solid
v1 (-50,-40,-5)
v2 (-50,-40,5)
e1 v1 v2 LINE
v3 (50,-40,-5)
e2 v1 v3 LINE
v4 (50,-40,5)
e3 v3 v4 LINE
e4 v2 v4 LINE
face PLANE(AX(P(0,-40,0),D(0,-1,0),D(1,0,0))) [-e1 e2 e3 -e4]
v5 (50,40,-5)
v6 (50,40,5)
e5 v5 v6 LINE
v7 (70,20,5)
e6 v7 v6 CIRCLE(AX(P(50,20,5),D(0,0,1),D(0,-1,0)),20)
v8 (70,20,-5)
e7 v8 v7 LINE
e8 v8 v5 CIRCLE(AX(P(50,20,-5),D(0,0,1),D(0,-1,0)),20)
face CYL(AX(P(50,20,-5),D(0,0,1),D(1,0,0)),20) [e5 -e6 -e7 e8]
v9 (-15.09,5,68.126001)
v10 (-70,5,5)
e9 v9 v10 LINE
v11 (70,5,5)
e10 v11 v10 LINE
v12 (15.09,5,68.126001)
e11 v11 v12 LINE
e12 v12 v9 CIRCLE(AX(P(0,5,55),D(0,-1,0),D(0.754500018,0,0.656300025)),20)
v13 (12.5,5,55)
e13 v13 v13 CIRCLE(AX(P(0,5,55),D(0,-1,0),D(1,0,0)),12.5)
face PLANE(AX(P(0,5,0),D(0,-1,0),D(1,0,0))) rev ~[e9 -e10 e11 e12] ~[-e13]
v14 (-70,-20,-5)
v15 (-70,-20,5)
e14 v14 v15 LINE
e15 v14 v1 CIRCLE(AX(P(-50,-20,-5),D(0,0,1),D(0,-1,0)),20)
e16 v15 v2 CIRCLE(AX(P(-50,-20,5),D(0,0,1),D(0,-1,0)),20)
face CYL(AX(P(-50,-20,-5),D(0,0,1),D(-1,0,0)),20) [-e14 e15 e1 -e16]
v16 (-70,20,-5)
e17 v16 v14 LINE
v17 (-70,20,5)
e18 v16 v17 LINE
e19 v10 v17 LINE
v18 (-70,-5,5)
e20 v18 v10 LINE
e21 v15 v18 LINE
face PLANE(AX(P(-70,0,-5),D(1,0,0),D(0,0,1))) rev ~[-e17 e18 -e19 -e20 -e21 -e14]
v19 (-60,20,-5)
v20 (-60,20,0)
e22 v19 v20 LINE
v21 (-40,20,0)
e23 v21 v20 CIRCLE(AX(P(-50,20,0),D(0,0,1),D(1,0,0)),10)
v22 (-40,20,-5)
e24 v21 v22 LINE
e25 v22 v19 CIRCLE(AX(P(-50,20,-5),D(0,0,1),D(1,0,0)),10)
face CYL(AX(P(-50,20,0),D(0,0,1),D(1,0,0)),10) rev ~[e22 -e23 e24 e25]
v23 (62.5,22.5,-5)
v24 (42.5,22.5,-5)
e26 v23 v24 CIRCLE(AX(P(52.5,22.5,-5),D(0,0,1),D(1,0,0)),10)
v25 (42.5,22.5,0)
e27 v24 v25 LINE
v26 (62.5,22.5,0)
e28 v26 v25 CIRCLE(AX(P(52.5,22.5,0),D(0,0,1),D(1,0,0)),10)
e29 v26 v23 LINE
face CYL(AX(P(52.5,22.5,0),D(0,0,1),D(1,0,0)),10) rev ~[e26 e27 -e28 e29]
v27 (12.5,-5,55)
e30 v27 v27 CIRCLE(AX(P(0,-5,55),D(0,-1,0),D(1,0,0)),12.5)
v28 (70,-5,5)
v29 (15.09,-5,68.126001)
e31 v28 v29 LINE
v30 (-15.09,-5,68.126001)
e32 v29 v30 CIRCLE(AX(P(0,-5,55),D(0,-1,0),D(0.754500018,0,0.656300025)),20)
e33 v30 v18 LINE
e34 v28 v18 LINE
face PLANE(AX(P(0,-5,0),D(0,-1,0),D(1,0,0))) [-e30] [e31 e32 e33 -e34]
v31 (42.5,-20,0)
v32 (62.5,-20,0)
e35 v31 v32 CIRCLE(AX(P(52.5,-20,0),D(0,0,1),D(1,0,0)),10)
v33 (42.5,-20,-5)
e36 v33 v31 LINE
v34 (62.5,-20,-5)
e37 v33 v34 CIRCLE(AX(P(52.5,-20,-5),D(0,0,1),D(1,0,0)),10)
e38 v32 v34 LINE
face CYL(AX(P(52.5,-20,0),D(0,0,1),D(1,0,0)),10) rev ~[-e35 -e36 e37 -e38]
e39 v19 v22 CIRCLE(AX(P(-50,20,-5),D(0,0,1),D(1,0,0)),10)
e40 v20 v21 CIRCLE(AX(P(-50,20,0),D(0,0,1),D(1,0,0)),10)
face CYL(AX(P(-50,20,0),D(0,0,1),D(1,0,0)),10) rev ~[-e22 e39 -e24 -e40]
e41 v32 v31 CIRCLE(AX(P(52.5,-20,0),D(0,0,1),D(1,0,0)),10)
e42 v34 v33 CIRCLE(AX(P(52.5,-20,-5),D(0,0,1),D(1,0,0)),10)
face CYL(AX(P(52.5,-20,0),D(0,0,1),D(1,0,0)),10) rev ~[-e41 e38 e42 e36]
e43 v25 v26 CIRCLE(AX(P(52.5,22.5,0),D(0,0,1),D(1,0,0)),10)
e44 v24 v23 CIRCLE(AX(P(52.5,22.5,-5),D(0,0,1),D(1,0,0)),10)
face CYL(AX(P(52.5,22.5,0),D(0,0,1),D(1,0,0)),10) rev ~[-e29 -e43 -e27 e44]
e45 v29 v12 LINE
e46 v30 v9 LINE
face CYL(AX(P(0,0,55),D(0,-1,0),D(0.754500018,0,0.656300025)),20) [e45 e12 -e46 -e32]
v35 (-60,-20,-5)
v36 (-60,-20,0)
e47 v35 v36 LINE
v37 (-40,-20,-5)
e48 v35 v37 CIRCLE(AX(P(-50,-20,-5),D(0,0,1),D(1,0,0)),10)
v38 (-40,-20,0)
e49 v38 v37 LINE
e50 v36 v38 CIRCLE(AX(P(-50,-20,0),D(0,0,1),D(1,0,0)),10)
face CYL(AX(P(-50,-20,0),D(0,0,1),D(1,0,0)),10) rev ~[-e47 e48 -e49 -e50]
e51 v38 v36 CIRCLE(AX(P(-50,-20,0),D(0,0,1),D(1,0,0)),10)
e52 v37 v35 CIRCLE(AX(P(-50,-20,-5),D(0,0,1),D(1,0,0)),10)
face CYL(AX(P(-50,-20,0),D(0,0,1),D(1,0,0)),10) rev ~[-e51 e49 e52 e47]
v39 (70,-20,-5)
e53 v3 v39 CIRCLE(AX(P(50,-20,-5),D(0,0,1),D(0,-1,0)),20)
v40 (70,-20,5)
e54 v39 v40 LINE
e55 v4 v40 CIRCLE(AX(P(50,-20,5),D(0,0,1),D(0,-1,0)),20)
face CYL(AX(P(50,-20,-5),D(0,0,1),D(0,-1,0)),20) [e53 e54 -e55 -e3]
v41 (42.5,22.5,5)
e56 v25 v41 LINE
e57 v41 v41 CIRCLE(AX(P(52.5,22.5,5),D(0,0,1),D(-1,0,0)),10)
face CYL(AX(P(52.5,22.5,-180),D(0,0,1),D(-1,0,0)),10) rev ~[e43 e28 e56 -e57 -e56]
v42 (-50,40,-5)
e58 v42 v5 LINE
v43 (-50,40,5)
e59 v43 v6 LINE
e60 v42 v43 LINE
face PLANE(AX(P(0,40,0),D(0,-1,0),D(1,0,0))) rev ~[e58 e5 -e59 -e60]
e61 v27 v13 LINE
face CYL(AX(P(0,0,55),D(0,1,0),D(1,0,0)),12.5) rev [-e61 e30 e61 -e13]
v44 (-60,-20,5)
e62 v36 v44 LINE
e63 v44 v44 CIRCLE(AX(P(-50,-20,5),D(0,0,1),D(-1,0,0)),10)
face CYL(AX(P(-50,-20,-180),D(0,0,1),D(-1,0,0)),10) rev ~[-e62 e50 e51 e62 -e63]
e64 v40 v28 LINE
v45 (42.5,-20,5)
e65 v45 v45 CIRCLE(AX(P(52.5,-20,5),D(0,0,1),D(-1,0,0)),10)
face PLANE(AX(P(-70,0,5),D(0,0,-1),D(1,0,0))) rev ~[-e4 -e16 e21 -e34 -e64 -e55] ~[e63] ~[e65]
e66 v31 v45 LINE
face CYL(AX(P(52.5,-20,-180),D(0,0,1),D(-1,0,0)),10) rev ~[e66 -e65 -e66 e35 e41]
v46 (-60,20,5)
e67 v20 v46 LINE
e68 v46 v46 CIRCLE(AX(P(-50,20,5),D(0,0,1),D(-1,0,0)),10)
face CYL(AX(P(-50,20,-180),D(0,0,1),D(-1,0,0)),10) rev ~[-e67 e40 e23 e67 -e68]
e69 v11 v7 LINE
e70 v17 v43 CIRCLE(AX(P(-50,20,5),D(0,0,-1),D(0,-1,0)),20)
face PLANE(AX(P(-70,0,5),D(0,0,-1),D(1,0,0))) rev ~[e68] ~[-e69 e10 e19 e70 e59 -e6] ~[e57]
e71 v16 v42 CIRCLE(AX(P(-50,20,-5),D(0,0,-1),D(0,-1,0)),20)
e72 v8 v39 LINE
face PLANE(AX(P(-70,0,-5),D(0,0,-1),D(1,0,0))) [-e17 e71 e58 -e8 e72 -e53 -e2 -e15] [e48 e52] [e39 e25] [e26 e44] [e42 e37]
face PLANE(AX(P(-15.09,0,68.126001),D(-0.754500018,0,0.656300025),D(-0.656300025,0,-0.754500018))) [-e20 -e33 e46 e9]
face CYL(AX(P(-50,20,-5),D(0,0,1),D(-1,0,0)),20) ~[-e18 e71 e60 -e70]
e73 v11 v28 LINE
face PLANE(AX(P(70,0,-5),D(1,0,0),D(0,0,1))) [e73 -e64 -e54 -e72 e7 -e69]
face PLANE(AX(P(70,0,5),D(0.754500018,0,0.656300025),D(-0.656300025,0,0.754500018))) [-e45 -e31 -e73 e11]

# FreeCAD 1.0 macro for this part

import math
import FreeCAD as App
import Part
import Sketcher
from FreeCAD import Vector
Q = App.Units.Quantity


def edges_at(feature, points):
    """Names of the edges that pass closest to the given points."""
    edges = feature.Shape.Edges
    near = lambda p: min(range(len(edges)), key=lambda i: edges[i].distToShape(Part.Vertex(*p))[0])
    return sorted({f"Edge{near(p) + 1}" for p in points})

doc = App.newDocument("Part")
params = doc.addObject("Spreadsheet::Sheet", "Params")
for row, (alias, value) in enumerate([
    ("sketch1_width", "140 mm"),
    ("sketch1_height", "10 mm"),
    ("pad1_length", "80 mm"),
    ("sketch2_diameter", "25 mm"),
    ("sketch2_radius", "20 mm"),
    ("sketch2_width", "140 mm"),
    ("sketch2_height", "10 mm"),
    ("pad2_length", "10 mm"),
    ("fillet_radius", "20 mm"),
    ("sketch3_diameter", "20 mm"),
    ("sketch4_diameter", "20 mm"),
    ("hole_diameter", "20 mm"),
    ("sketch5_diameter", "20 mm"),
    ("sketch6_diameter", "20 mm"),
    ("hole2_diameter", "20 mm"),
    ("sketch7_diameter", "20 mm"),
    ("sketch8_diameter", "20 mm"),
    ("hole3_diameter", "20 mm"),
], start=1):
    params.set(f"A{row}", alias)
    params.set(f"B{row}", "=" + value)
    params.setAlias(f"B{row}", alias)

body = doc.addObject("PartDesign::Body", "Body")

# Sketch on XZ plane
sketch1 = body.newObject("Sketcher::SketchObject", "Sketch")
sketch1.AttachmentSupport = (doc.getObject("XZ_Plane"), [""])
sketch1.MapMode = "FlatFace"
sketch1.addGeometry([
    Part.LineSegment(Vector(-70, 5, 0), Vector(-70, -5, 0)),
    Part.LineSegment(Vector(-70, -5, 0), Vector(70, -5, 0)),
    Part.LineSegment(Vector(70, -5, 0), Vector(70, 5, 0)),
    Part.LineSegment(Vector(70, 5, 0), Vector(-70, 5, 0)),
], False)
sketch1.addConstraint([
    Sketcher.Constraint("Coincident", 0, 2, 1, 1),
    Sketcher.Constraint("Coincident", 1, 2, 2, 1),
    Sketcher.Constraint("Coincident", 2, 2, 3, 1),
    Sketcher.Constraint("Coincident", 3, 2, 0, 1),
    Sketcher.Constraint("Vertical", 0),
    Sketcher.Constraint("Horizontal", 1),
    Sketcher.Constraint("Vertical", 2),
    Sketcher.Constraint("Horizontal", 3),
    Sketcher.Constraint("Symmetric", 0, 2, 2, 2, -1, 1),
    Sketcher.Constraint("DistanceX", 1, 1, 1, 2, Q("140 mm")),
    Sketcher.Constraint("DistanceY", 0, 2, 0, 1, Q("10 mm")),
])
sketch1.setExpression("Constraints[9]", "Params.sketch1_width")
sketch1.setExpression("Constraints[10]", "Params.sketch1_height")
pad1 = body.newObject("PartDesign::Pad", "Pad")
pad1.Profile = sketch1
pad1.setExpression("Length", "Params.pad1_length")
pad1.Midplane = True

# Sketch on XZ plane
sketch2 = body.newObject("Sketcher::SketchObject", "Sketch001")
sketch2.AttachmentSupport = (doc.getObject("XZ_Plane"), [""])
sketch2.MapMode = "FlatFace"
sketch2.addGeometry([
    Part.LineSegment(Vector(-70, 5, 0), Vector(-70, -5, 0)),  # 0
    Part.LineSegment(Vector(-70, -5, 0), Vector(70, -5, 0)),  # 1
    Part.LineSegment(Vector(70, -5, 0), Vector(70, 5, 0)),  # 2
    Part.LineSegment(Vector(70, 5, 0), Vector(15, 68, 0)),  # 3
    Part.ArcOfCircle(Part.Circle(Vector(0, 55, 0), Vector(0, 0, 1), 20), math.radians(41), math.radians(139)),  # 4
    Part.LineSegment(Vector(-15, 68, 0), Vector(-70, 5, 0)),  # 5
    Part.Circle(Vector(0, 55, 0), Vector(0, 0, 1), 12),  # 6
], False)
sketch2.addConstraint([
    Sketcher.Constraint("Coincident", 0, 2, 1, 1),
    Sketcher.Constraint("Coincident", 1, 2, 2, 1),
    Sketcher.Constraint("Coincident", 2, 2, 3, 1),
    Sketcher.Constraint("Tangent", 3, 2, 4, 1),
    Sketcher.Constraint("Tangent", 4, 2, 5, 1),
    Sketcher.Constraint("Coincident", 5, 2, 0, 1),
    Sketcher.Constraint("Vertical", 0),
    Sketcher.Constraint("Horizontal", 1),
    Sketcher.Constraint("Vertical", 2),
    Sketcher.Constraint("Coincident", 6, 3, 4, 3),
    Sketcher.Constraint("Symmetric", 0, 2, 2, 2, -1, 1),
    Sketcher.Constraint("Symmetric", 3, 2, 4, 2, -2),
    Sketcher.Constraint("Diameter", 6, Q("25 mm")),
    Sketcher.Constraint("Radius", 4, Q("20 mm")),
    Sketcher.Constraint("DistanceX", 1, 1, 1, 2, Q("140 mm")),
    Sketcher.Constraint("DistanceY", 0, 2, 0, 1, Q("10 mm")),
    Sketcher.Constraint("DistanceY", -1, 1, 4, 3, Q("55 mm")),
])
sketch2.setExpression("Constraints[12]", "Params.sketch2_diameter")
sketch2.setExpression("Constraints[13]", "Params.sketch2_radius")
sketch2.setExpression("Constraints[14]", "Params.sketch2_width")
sketch2.setExpression("Constraints[15]", "Params.sketch2_height")
pad2 = body.newObject("PartDesign::Pad", "Pad001")
pad2.Profile = sketch2
pad2.setExpression("Length", "Params.pad2_length")
pad2.Midplane = True
doc.recompute()

fillet = body.newObject("PartDesign::Fillet", "Fillet")
fillet.Base = (pad2, edges_at(pad2, [
    (-70, 40, 0),
    (-70, -40, 0),
    (70, 40, 0),
    (70, -40, 0),
]))
fillet.setExpression("Radius", "Params.fillet_radius")

# Sketch on XY plane
sketch3 = body.newObject("Sketcher::SketchObject", "Sketch002")
sketch3.AttachmentSupport = (doc.getObject("XY_Plane"), [""])
sketch3.MapMode = "FlatFace"
sketch3.addGeometry(Part.Circle(Vector(52, 22, 0), Vector(0, 0, 1), 10), False)
sketch3.addConstraint([
    Sketcher.Constraint("Diameter", 0, Q("20 mm")),
    Sketcher.Constraint("DistanceX", -1, 1, 0, 3, Q("52.5 mm")),
    Sketcher.Constraint("DistanceY", -1, 1, 0, 3, Q("22.5 mm")),
])
sketch3.setExpression("Constraints[0]", "Params.sketch3_diameter")
pocket1 = body.newObject("PartDesign::Pocket", "Pocket")
pocket1.Profile = sketch3
pocket1.Type = "ThroughAll"

# Sketch on XY plane
sketch4 = body.newObject("Sketcher::SketchObject", "Sketch003")
sketch4.AttachmentSupport = (doc.getObject("XY_Plane"), [""])
sketch4.MapMode = "FlatFace"
sketch4.addGeometry(Part.Circle(Vector(52, 22, 0), Vector(0, 0, 1), 10), False)
sketch4.addConstraint([
    Sketcher.Constraint("Diameter", 0, Q("20 mm")),
    Sketcher.Constraint("DistanceX", -1, 1, 0, 3, Q("52.5 mm")),
    Sketcher.Constraint("DistanceY", -1, 1, 0, 3, Q("22.5 mm")),
])
sketch4.setExpression("Constraints[0]", "Params.sketch4_diameter")
doc.recompute()
hole = body.newObject("PartDesign::Hole", "Hole")
hole.Profile = sketch4
hole.ThreadType = "None"
hole.setExpression("Diameter", "Params.hole_diameter")
hole.DepthType = "ThroughAll"
hole.Reversed = True

# Sketch on XY plane
sketch5 = body.newObject("Sketcher::SketchObject", "Sketch004")
sketch5.AttachmentSupport = (doc.getObject("XY_Plane"), [""])
sketch5.MapMode = "FlatFace"
sketch5.addGeometry(Part.Circle(Vector(-50, 20, 0), Vector(0, 0, 1), 10), False)
sketch5.addConstraint([
    Sketcher.Constraint("Diameter", 0, Q("20 mm")),
    Sketcher.Constraint("DistanceX", 0, 3, -1, 1, Q("50 mm")),
    Sketcher.Constraint("DistanceY", -1, 1, 0, 3, Q("20 mm")),
])
sketch5.setExpression("Constraints[0]", "Params.sketch5_diameter")
pocket2 = body.newObject("PartDesign::Pocket", "Pocket001")
pocket2.Profile = sketch5
pocket2.Type = "ThroughAll"

# Sketch on XY plane
sketch6 = body.newObject("Sketcher::SketchObject", "Sketch005")
sketch6.AttachmentSupport = (doc.getObject("XY_Plane"), [""])
sketch6.MapMode = "FlatFace"
sketch6.addGeometry(Part.Circle(Vector(-50, 20, 0), Vector(0, 0, 1), 10), False)
sketch6.addConstraint([
    Sketcher.Constraint("Diameter", 0, Q("20 mm")),
    Sketcher.Constraint("DistanceX", 0, 3, -1, 1, Q("50 mm")),
    Sketcher.Constraint("DistanceY", -1, 1, 0, 3, Q("20 mm")),
])
sketch6.setExpression("Constraints[0]", "Params.sketch6_diameter")
doc.recompute()
hole2 = body.newObject("PartDesign::Hole", "Hole001")
hole2.Profile = sketch6
hole2.ThreadType = "None"
hole2.setExpression("Diameter", "Params.hole2_diameter")
hole2.DepthType = "ThroughAll"
hole2.Reversed = True

# Sketch on XY plane
sketch7 = body.newObject("Sketcher::SketchObject", "Sketch006")
sketch7.AttachmentSupport = (doc.getObject("XY_Plane"), [""])
sketch7.MapMode = "FlatFace"
sketch7.addGeometry([
    Part.Circle(Vector(52, -20, 0), Vector(0, 0, 1), 10),
    Part.Circle(Vector(-50, -20, 0), Vector(0, 0, 1), 10),
], False)
sketch7.addConstraint([
    Sketcher.Constraint("Equal", 0, 1),
    Sketcher.Constraint("Horizontal", 0, 3, 1, 3),
    Sketcher.Constraint("Diameter", 0, Q("20 mm")),
    Sketcher.Constraint("DistanceY", 0, 3, -1, 1, Q("20 mm")),
    Sketcher.Constraint("DistanceX", 1, 3, -1, 1, Q("50 mm")),
    Sketcher.Constraint("DistanceX", -1, 1, 0, 3, Q("52.5 mm")),
])
sketch7.setExpression("Constraints[2]", "Params.sketch7_diameter")
pocket3 = body.newObject("PartDesign::Pocket", "Pocket002")
pocket3.Profile = sketch7
pocket3.Type = "ThroughAll"

# Sketch on XY plane
sketch8 = body.newObject("Sketcher::SketchObject", "Sketch007")
sketch8.AttachmentSupport = (doc.getObject("XY_Plane"), [""])
sketch8.MapMode = "FlatFace"
sketch8.addGeometry([
    Part.Circle(Vector(-50, -20, 0), Vector(0, 0, 1), 10),
    Part.Circle(Vector(52, -20, 0), Vector(0, 0, 1), 10),
], False)
sketch8.addConstraint([
    Sketcher.Constraint("Equal", 0, 1),
    Sketcher.Constraint("Horizontal", 0, 3, 1, 3),
    Sketcher.Constraint("Diameter", 0, Q("20 mm")),
    Sketcher.Constraint("DistanceX", 0, 3, -1, 1, Q("50 mm")),
    Sketcher.Constraint("DistanceY", 0, 3, -1, 1, Q("20 mm")),
    Sketcher.Constraint("DistanceX", -1, 1, 1, 3, Q("52.5 mm")),
])
sketch8.setExpression("Constraints[2]", "Params.sketch8_diameter")
doc.recompute()
hole3 = body.newObject("PartDesign::Hole", "Hole002")
hole3.Profile = sketch8
hole3.ThreadType = "None"
hole3.setExpression("Diameter", "Params.hole3_diameter")
hole3.DepthType = "ThroughAll"
hole3.Reversed = True

doc.recompute()
